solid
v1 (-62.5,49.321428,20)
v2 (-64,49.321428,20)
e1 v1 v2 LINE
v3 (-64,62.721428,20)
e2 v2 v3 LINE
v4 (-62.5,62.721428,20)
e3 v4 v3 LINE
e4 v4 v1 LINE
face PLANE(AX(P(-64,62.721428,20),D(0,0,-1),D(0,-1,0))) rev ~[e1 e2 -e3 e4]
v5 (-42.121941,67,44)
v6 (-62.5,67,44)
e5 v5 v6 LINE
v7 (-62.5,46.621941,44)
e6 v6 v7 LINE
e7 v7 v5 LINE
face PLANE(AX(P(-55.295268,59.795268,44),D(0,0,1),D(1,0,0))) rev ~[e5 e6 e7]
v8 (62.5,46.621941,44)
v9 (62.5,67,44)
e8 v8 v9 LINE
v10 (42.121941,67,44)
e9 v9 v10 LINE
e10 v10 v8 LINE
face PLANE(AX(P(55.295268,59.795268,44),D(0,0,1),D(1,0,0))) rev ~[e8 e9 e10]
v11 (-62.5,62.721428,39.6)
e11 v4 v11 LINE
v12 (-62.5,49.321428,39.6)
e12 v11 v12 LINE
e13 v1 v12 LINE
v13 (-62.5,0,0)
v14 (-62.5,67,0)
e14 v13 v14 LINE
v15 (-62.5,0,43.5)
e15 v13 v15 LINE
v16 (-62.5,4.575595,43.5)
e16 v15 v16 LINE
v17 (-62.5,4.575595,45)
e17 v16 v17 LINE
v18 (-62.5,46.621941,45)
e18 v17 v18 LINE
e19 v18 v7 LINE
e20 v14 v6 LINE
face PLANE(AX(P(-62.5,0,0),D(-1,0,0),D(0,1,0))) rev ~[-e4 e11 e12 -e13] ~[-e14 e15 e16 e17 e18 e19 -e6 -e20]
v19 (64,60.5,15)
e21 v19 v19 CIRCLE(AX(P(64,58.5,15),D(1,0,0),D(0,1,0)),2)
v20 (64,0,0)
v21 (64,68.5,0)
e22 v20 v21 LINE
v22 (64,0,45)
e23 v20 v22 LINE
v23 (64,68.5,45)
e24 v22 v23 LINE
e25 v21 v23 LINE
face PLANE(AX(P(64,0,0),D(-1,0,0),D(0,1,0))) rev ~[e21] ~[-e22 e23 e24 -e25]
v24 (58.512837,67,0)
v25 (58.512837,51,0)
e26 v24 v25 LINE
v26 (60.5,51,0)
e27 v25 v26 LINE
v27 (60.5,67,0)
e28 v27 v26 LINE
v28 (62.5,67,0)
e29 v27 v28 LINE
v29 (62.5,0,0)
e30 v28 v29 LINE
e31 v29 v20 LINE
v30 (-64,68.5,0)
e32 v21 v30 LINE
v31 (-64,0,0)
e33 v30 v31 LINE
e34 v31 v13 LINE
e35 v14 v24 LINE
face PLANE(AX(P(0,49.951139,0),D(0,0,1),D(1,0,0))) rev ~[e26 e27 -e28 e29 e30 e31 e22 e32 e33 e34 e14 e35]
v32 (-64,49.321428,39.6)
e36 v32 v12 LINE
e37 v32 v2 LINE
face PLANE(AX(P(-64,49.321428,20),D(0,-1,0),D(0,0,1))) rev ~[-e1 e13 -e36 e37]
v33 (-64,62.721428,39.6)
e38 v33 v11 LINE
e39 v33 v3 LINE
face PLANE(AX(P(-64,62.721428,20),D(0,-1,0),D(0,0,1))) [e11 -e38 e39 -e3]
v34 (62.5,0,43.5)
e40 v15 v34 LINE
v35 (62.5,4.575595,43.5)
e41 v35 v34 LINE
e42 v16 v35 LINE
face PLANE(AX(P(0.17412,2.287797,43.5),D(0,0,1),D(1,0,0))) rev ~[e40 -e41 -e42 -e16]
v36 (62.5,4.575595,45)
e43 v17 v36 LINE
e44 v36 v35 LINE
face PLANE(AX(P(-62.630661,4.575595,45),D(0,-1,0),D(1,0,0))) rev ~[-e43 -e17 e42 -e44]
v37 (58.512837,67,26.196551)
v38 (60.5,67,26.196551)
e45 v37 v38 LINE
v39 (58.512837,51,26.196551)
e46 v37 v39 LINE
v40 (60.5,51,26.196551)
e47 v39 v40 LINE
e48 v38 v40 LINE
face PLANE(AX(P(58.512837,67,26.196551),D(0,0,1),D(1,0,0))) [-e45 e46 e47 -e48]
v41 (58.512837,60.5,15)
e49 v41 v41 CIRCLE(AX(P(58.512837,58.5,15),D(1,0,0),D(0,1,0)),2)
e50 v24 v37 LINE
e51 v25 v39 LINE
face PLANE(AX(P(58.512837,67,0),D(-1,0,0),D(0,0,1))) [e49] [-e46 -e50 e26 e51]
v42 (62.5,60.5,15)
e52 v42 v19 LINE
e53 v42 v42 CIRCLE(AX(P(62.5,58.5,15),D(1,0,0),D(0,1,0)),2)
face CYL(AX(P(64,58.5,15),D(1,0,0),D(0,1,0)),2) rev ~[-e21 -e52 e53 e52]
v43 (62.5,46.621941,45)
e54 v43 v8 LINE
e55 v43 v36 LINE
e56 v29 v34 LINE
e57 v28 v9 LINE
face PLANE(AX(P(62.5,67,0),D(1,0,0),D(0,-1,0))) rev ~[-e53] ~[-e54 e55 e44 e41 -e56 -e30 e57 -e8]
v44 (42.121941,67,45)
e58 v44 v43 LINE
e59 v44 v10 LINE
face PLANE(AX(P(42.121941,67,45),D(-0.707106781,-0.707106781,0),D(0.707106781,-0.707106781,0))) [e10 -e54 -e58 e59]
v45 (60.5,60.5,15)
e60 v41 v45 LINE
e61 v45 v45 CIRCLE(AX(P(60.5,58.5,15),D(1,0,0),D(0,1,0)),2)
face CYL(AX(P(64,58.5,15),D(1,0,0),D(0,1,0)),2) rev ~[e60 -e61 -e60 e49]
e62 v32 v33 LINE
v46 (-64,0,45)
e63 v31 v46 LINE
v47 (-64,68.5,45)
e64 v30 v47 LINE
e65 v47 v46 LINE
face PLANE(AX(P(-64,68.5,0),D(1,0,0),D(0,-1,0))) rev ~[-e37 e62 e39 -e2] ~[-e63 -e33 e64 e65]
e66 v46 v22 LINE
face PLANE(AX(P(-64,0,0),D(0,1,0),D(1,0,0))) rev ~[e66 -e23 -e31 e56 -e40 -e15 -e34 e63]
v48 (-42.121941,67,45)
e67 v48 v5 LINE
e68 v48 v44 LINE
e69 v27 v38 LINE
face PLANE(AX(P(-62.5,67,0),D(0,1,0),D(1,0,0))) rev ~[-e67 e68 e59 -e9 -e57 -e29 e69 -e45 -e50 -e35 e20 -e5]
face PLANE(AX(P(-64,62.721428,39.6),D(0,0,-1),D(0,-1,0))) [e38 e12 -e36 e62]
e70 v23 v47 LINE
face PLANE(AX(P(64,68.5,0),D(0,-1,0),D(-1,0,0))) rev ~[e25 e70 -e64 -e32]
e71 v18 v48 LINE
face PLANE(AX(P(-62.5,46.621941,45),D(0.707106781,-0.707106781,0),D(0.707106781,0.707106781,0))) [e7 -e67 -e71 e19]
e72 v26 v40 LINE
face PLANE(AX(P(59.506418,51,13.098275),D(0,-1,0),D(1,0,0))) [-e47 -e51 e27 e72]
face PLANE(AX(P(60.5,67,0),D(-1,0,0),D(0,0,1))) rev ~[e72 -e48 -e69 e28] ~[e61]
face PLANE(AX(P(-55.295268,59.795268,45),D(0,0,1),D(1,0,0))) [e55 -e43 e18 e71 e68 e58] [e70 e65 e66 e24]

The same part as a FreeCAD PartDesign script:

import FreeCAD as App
import Part
import Sketcher
from FreeCAD import Vector

doc = App.newDocument("Part")
body = doc.addObject("PartDesign::Body", "Body")

# Sketch on XY plane
sketch1 = body.newObject("Sketcher::SketchObject", "Sketch")
sketch1.AttachmentSupport = (doc.getObject("XY_Plane"), [""])
sketch1.MapMode = "FlatFace"
sketch1.addGeometry([
    Part.LineSegment(Vector(-64, 0, 0), Vector(-62.5, 0, 0)),  # 0
    Part.LineSegment(Vector(-62.5, 0, 0), Vector(-62.5, 67, 0)),  # 1
    Part.LineSegment(Vector(-62.5, 67, 0), Vector(62.5, 67, 0)),  # 2
    Part.LineSegment(Vector(62.5, 67, 0), Vector(62.5, 0, 0)),  # 3
    Part.LineSegment(Vector(62.5, 0, 0), Vector(64, 0, 0)),  # 4
    Part.LineSegment(Vector(64, 0, 0), Vector(64, 68.5, 0)),  # 5
    Part.LineSegment(Vector(64, 68.5, 0), Vector(-64, 68.5, 0)),  # 6
    Part.LineSegment(Vector(-64, 68.5, 0), Vector(-64, 0, 0)),  # 7
], False)
sketch1.addConstraint([
    Sketcher.Constraint("Coincident", 0, 2, 1, 1),
    Sketcher.Constraint("Coincident", 1, 2, 2, 1),
    Sketcher.Constraint("Coincident", 2, 2, 3, 1),
    Sketcher.Constraint("Coincident", 3, 2, 4, 1),
    Sketcher.Constraint("Coincident", 4, 2, 5, 1),
    Sketcher.Constraint("Coincident", 5, 2, 6, 1),
    Sketcher.Constraint("Coincident", 6, 2, 7, 1),
    Sketcher.Constraint("Coincident", 7, 2, 0, 1),
    Sketcher.Constraint("Horizontal", 0),
    Sketcher.Constraint("Vertical", 1),
    Sketcher.Constraint("Horizontal", 2),
    Sketcher.Constraint("Vertical", 3),
    Sketcher.Constraint("Horizontal", 4),
    Sketcher.Constraint("Vertical", 5),
    Sketcher.Constraint("Horizontal", 6),
    Sketcher.Constraint("Vertical", 7),
    Sketcher.Constraint("Symmetric", 0, 2, 3, 2, -1, 1),
    Sketcher.Constraint("Symmetric", 4, 2, 7, 2, -2),
    Sketcher.Constraint("DistanceX", 2, 1, 2, 2, 125.0),
    Sketcher.Constraint("DistanceX", 6, 2, 6, 1, 128.0),
    Sketcher.Constraint("DistanceY", 1, 1, 1, 2, 67.0),
    Sketcher.Constraint("DistanceY", 5, 1, 5, 2, 68.5),
])
pad1 = body.newObject("PartDesign::Pad", "Pad")
pad1.Profile = sketch1
pad1.Length = 45

# Sketch on YZ plane
sketch2 = body.newObject("Sketcher::SketchObject", "Sketch001")
sketch2.AttachmentSupport = (doc.getObject("YZ_Plane"), [""])
sketch2.MapMode = "FlatFace"
sketch2.AttachmentOffset = App.Placement(Vector(0, 0, -64), App.Rotation())
sketch2.addGeometry([
    Part.LineSegment(Vector(63, 40, 0), Vector(63, 20, 0)),
    Part.LineSegment(Vector(63, 20, 0), Vector(49, 20, 0)),
    Part.LineSegment(Vector(49, 20, 0), Vector(49, 40, 0)),
    Part.LineSegment(Vector(49, 40, 0), Vector(63, 40, 0)),
], False)
sketch2.addConstraint([
    Sketcher.Constraint("Coincident", 0, 2, 1, 1),
    Sketcher.Constraint("Coincident", 1, 2, 2, 1),
    Sketcher.Constraint("Coincident", 2, 2, 3, 1),
    Sketcher.Constraint("Coincident", 3, 2, 0, 1),
    Sketcher.Constraint("Vertical", 0),
    Sketcher.Constraint("Horizontal", 1),
    Sketcher.Constraint("Vertical", 2),
    Sketcher.Constraint("Horizontal", 3),
    Sketcher.Constraint("DistanceX", 1, 2, 1, 1, 13.4),
    Sketcher.Constraint("DistanceY", 0, 2, 0, 1, 19.6),
    Sketcher.Constraint("DistanceY", -1, 1, 0, 2, 20.0),
    Sketcher.Constraint("DistanceX", -1, 1, 0, 2, 62.721428),
])
pocket1 = body.newObject("PartDesign::Pocket", "Pocket")
pocket1.Profile = sketch2
pocket1.Length = 6
pocket1.Midplane = True

# Sketch on XY plane
sketch3 = body.newObject("Sketcher::SketchObject", "Sketch002")
sketch3.AttachmentSupport = (doc.getObject("XY_Plane"), [""])
sketch3.MapMode = "FlatFace"
sketch3.AttachmentOffset = App.Placement(Vector(0, 0, 45), App.Rotation())
sketch3.addGeometry([
    Part.LineSegment(Vector(-42, 67, 0), Vector(-62, 67, 0)),  # 0
    Part.LineSegment(Vector(-62, 67, 0), Vector(-62, 47, 0)),  # 1
    Part.LineSegment(Vector(-62, 47, 0), Vector(-42, 67, 0)),  # 2
    Part.LineSegment(Vector(62, 67, 0), Vector(42, 67, 0)),  # 3
    Part.LineSegment(Vector(42, 67, 0), Vector(62, 47, 0)),  # 4
    Part.LineSegment(Vector(62, 47, 0), Vector(62, 67, 0)),  # 5
], False)
sketch3.addConstraint([
    Sketcher.Constraint("Coincident", 0, 2, 1, 1),
    Sketcher.Constraint("Coincident", 1, 2, 2, 1),
    Sketcher.Constraint("Coincident", 2, 2, 0, 1),
    Sketcher.Constraint("Coincident", 3, 2, 4, 1),
    Sketcher.Constraint("Coincident", 4, 2, 5, 1),
    Sketcher.Constraint("Coincident", 5, 2, 3, 1),
    Sketcher.Constraint("Horizontal", 0),
    Sketcher.Constraint("Vertical", 1),
    Sketcher.Constraint("Horizontal", 3),
    Sketcher.Constraint("Vertical", 5),
    Sketcher.Constraint("Symmetric", 2, 2, 3, 2, -2),
    Sketcher.Constraint("Symmetric", 1, 2, 4, 2, -2),
    Sketcher.Constraint("Perpendicular", 2, 4),
    Sketcher.Constraint("DistanceY", -1, 1, 0, 2, 67.0),
    Sketcher.Constraint("DistanceX", 1, 2, 4, 2, 125.0),
    Sketcher.Constraint("DistanceX", 0, 2, 0, 1, 20.378059),
])
pad2 = body.newObject("PartDesign::Pad", "Pad001")
pad2.Profile = sketch3
pad2.Length = 1
pad2.Reversed = True

# Sketch on XY plane
sketch4 = body.newObject("Sketcher::SketchObject", "Sketch003")
sketch4.AttachmentSupport = (doc.getObject("XY_Plane"), [""])
sketch4.MapMode = "FlatFace"
sketch4.AttachmentOffset = App.Placement(Vector(0, 0, 45), App.Rotation())
sketch4.addGeometry([
    Part.LineSegment(Vector(-62.6, 4.6, 0), Vector(-62.6, 0, 0)),
    Part.LineSegment(Vector(-62.6, 0, 0), Vector(63, 0, 0)),
    Part.LineSegment(Vector(63, 0, 0), Vector(63, 4.6, 0)),
    Part.LineSegment(Vector(63, 4.6, 0), Vector(-62.6, 4.6, 0)),
], False)
sketch4.addConstraint([
    Sketcher.Constraint("Coincident", 0, 2, 1, 1),
    Sketcher.Constraint("Coincident", 1, 2, 2, 1),
    Sketcher.Constraint("Coincident", 2, 2, 3, 1),
    Sketcher.Constraint("Coincident", 3, 2, 0, 1),
    Sketcher.Constraint("Vertical", 0),
    Sketcher.Constraint("Horizontal", 1),
    Sketcher.Constraint("Vertical", 2),
    Sketcher.Constraint("Horizontal", 3),
    Sketcher.Constraint("PointOnObject", 0, 2, -1),
    Sketcher.Constraint("DistanceX", 1, 1, 1, 2, 125.609562),
    Sketcher.Constraint("DistanceX", -1, 1, 1, 2, 62.978901),
    Sketcher.Constraint("DistanceY", 0, 2, 0, 1, 4.575595),
])
pad3 = body.newObject("PartDesign::Pad", "Pad002")
pad3.Profile = sketch4
pad3.Length = 1.5
pad3.Reversed = True

# Sketch on XZ plane
sketch5 = body.newObject("Sketcher::SketchObject", "Sketch004")
sketch5.AttachmentSupport = (doc.getObject("XZ_Plane"), [""])
sketch5.MapMode = "FlatFace"
sketch5.AttachmentOffset = App.Placement(Vector(0, 0, -67), App.Rotation())
sketch5.addGeometry([
    Part.LineSegment(Vector(58.5, 26.2, 0), Vector(58.5, 0, 0)),
    Part.LineSegment(Vector(58.5, 0, 0), Vector(60.5, 0, 0)),
    Part.LineSegment(Vector(60.5, 0, 0), Vector(60.5, 26.2, 0)),
    Part.LineSegment(Vector(60.5, 26.2, 0), Vector(58.5, 26.2, 0)),
], False)
sketch5.addConstraint([
    Sketcher.Constraint("Coincident", 0, 2, 1, 1),
    Sketcher.Constraint("Coincident", 1, 2, 2, 1),
    Sketcher.Constraint("Coincident", 2, 2, 3, 1),
    Sketcher.Constraint("Coincident", 3, 2, 0, 1),
    Sketcher.Constraint("Vertical", 0),
    Sketcher.Constraint("Horizontal", 1),
    Sketcher.Constraint("Vertical", 2),
    Sketcher.Constraint("Horizontal", 3),
    Sketcher.Constraint("PointOnObject", 0, 2, -1),
    Sketcher.Constraint("DistanceX", -1, 1, 1, 2, 60.5),
    Sketcher.Constraint("DistanceY", 0, 2, 0, 1, 26.196551),
    Sketcher.Constraint("DistanceX", 1, 1, 1, 2, 1.987163),
])
pad4 = body.newObject("PartDesign::Pad", "Pad003")
pad4.Profile = sketch5
pad4.Length = 16

# Sketch on YZ plane
sketch6 = body.newObject("Sketcher::SketchObject", "Sketch005")
sketch6.AttachmentSupport = (doc.getObject("YZ_Plane"), [""])
sketch6.MapMode = "FlatFace"
sketch6.AttachmentOffset = App.Placement(Vector(0, 0, 64), App.Rotation())
sketch6.addGeometry(Part.Circle(Vector(58.5, 15, 0), Vector(0, 0, 1), 2), False)
sketch6.addConstraint([
    Sketcher.Constraint("Diameter", 0, 4.0),
    Sketcher.Constraint("DistanceY", -1, 1, 0, 3, 15.0),
    Sketcher.Constraint("DistanceX", -1, 1, 0, 3, 58.5),
])
pocket2 = body.newObject("PartDesign::Pocket", "Pocket001")
pocket2.Profile = sketch6
pocket2.Length = 18.8
pocket2.Midplane = True

doc.recompute()
